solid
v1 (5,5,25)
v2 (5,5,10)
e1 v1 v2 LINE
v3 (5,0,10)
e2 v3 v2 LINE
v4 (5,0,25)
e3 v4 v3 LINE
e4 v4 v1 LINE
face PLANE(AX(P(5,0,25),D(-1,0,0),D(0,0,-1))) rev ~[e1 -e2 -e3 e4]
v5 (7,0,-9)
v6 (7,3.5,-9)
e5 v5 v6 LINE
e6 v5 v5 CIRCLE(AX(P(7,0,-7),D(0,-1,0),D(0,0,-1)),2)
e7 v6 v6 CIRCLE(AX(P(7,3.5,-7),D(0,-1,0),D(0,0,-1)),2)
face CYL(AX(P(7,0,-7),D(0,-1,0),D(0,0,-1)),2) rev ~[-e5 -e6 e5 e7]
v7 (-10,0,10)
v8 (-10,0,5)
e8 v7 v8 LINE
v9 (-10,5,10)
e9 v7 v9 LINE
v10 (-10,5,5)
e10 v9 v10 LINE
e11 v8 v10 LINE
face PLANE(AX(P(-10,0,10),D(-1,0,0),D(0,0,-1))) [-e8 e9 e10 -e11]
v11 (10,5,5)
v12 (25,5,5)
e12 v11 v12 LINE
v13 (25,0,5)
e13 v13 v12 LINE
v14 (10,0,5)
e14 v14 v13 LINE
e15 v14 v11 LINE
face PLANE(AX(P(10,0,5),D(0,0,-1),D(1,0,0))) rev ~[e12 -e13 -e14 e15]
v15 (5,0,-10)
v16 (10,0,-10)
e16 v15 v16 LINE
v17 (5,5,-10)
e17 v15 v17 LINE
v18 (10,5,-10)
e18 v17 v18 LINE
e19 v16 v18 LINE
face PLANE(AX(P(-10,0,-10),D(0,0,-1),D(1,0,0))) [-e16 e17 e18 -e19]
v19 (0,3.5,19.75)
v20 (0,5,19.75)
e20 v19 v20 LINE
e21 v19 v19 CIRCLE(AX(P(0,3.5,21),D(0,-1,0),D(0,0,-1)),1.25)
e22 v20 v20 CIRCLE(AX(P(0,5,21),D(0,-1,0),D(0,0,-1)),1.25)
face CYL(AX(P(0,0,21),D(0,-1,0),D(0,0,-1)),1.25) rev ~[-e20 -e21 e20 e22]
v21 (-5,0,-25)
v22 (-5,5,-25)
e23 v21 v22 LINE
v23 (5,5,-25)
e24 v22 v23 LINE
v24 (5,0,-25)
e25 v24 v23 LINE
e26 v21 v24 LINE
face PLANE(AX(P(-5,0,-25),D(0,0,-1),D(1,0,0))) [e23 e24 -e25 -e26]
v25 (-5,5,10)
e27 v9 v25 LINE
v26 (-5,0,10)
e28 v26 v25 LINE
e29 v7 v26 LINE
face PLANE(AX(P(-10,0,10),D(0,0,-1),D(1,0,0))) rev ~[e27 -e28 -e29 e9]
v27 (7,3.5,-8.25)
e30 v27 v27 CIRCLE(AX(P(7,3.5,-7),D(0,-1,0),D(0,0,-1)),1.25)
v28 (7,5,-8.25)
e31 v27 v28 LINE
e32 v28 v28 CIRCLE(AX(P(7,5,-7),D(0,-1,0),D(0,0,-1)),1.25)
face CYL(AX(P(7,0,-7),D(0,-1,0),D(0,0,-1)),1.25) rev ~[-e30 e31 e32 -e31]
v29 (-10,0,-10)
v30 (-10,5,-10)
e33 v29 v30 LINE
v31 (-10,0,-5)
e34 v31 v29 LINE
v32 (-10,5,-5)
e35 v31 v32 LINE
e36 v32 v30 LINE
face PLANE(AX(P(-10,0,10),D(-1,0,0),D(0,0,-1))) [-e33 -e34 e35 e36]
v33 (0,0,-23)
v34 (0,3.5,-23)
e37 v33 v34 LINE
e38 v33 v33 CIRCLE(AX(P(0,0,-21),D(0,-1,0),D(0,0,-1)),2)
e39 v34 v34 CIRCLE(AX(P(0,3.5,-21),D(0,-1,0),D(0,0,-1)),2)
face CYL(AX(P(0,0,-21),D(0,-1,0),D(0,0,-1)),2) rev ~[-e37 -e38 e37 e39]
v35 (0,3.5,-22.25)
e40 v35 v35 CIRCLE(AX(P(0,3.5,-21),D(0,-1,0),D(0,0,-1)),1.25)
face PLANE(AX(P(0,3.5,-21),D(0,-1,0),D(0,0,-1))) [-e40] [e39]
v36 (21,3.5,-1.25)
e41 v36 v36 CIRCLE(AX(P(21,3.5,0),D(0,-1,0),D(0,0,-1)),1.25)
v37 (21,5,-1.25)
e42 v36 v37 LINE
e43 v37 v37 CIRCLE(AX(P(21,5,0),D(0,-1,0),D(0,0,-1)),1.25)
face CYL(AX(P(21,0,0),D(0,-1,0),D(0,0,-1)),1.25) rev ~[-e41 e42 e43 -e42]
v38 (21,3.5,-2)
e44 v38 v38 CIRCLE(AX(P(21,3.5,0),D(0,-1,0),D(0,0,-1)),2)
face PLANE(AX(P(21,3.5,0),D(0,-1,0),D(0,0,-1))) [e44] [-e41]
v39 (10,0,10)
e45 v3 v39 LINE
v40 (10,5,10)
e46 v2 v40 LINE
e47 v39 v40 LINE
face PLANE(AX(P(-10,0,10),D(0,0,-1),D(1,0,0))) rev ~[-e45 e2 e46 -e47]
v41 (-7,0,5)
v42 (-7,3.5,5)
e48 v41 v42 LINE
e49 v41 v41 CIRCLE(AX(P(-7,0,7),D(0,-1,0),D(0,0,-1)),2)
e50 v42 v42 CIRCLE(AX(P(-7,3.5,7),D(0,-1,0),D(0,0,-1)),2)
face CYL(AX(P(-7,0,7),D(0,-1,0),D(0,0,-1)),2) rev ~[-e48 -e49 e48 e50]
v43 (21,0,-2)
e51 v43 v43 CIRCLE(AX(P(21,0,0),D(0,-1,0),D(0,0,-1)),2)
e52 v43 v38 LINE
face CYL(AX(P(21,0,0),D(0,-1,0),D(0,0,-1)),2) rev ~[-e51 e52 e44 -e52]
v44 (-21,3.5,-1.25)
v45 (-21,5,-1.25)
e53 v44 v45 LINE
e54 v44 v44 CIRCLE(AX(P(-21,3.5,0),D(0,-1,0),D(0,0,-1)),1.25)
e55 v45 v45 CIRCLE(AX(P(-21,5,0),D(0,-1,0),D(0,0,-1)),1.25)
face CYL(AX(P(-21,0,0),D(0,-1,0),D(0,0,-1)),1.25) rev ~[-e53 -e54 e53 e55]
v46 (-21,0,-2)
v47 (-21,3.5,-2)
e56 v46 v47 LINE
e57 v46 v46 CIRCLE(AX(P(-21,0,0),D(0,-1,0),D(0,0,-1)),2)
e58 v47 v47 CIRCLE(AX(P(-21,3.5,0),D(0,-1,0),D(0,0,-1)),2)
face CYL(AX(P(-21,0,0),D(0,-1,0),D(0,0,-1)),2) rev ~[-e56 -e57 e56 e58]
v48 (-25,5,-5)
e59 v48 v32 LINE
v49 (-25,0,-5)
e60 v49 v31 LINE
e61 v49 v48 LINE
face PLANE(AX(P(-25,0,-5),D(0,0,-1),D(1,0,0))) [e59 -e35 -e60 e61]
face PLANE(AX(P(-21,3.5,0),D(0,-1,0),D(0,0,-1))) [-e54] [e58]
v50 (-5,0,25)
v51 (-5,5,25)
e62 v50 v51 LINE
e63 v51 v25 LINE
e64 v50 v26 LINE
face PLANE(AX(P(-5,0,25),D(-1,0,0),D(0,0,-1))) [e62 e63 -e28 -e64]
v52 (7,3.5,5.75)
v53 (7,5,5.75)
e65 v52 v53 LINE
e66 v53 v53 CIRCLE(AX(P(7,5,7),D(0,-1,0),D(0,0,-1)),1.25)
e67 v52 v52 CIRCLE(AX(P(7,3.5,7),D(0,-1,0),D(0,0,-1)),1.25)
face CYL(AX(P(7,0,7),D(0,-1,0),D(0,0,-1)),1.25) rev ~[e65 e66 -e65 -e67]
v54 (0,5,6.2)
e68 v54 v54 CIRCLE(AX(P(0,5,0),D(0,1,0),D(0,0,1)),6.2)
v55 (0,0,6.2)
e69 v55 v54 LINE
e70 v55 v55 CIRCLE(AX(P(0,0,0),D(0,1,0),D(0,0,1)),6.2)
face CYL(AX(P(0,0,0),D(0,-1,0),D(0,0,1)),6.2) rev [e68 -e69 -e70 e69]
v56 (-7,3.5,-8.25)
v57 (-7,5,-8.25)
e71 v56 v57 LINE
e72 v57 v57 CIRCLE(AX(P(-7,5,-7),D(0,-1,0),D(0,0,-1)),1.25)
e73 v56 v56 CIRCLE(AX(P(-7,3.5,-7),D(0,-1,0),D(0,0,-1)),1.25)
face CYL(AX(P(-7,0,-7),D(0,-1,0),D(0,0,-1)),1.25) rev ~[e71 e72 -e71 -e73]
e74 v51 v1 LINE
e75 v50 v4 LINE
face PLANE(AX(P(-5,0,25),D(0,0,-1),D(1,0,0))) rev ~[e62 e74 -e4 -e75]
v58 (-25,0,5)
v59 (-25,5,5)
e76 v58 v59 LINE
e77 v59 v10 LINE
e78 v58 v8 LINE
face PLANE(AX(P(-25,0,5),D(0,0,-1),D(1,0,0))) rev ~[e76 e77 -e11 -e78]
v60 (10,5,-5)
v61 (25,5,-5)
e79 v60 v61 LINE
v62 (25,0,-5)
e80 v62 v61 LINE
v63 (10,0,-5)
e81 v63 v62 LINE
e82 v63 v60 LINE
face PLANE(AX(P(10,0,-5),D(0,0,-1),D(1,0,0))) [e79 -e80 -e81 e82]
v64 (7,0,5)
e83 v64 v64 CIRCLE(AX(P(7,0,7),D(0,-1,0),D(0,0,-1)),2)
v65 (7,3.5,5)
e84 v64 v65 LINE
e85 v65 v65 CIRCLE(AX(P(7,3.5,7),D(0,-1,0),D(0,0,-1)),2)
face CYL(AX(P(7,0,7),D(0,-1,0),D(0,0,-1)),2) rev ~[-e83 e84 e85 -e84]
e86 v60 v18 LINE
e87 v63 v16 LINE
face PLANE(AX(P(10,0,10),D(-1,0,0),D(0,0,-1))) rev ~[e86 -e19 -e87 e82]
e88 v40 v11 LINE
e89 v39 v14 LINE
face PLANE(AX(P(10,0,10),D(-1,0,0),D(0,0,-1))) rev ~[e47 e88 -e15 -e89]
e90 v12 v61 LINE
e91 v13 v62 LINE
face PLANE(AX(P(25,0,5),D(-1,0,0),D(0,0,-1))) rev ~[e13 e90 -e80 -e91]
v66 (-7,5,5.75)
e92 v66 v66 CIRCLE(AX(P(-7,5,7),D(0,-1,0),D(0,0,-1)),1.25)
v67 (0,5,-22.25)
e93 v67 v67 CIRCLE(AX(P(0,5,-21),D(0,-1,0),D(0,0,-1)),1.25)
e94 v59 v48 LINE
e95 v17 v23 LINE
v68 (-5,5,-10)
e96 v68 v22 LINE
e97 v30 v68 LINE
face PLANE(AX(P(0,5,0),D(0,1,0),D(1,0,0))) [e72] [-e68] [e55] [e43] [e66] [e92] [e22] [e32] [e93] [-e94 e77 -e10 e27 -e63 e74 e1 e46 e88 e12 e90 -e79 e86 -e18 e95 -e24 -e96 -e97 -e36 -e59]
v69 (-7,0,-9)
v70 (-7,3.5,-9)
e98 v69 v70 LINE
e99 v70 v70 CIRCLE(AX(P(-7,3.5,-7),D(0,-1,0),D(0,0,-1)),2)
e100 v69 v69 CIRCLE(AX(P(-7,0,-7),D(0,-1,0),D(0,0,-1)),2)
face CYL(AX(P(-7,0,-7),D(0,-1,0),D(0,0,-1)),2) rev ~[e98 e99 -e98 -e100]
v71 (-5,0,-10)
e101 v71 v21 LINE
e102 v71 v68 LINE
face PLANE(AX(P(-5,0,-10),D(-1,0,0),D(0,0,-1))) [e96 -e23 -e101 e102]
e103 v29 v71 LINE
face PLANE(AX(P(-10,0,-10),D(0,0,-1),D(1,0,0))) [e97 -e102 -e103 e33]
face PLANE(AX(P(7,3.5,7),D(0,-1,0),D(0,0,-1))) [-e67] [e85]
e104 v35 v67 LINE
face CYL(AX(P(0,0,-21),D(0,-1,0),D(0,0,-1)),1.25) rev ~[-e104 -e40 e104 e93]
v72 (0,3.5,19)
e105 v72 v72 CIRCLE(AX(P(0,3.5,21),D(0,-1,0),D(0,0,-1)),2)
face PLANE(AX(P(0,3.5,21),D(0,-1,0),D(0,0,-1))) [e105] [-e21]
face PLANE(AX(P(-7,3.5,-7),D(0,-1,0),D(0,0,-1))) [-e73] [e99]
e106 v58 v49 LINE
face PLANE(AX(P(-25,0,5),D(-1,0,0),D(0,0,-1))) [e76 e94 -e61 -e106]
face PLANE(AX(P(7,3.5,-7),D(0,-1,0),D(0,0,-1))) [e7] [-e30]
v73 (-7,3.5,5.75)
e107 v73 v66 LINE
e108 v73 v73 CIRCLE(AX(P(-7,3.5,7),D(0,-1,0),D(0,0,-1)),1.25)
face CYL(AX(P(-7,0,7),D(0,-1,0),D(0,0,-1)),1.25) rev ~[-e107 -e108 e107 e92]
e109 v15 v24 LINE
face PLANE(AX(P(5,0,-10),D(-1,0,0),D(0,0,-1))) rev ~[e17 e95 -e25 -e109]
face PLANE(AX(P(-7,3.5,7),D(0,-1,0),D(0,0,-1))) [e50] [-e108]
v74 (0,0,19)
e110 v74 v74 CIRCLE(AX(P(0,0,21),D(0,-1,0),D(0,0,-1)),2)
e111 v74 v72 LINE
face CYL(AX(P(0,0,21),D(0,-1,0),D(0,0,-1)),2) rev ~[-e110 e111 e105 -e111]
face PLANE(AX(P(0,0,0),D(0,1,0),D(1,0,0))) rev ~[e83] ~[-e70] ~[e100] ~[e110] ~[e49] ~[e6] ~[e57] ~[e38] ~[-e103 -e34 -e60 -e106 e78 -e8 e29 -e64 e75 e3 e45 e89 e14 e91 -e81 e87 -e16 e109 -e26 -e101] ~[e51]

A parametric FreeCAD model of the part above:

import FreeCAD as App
import Part
import Sketcher

V = App.Vector


def add_polygon(sketch, points):
    """Adds a closed chain of lines whose ends are joined by coincident constraints."""
    first, n = sketch.GeometryCount, len(points)
    for a, b in zip(points, points[1:] + points[:1]):
        sketch.addGeometry(Part.LineSegment(App.Vector(*a, 0), App.Vector(*b, 0)), False)
    for i in range(n):
        sketch.addConstraint(Sketcher.Constraint("Coincident", first + i, 2, first + (i + 1) % n, 1))

doc = App.newDocument("Part")
body = doc.addObject("PartDesign::Body", "Body")

# Sketch on XZ plane
sketch1 = body.newObject("Sketcher::SketchObject", "Sketch")
sketch1.AttachmentSupport = (doc.getObject("XZ_Plane"), [""])
sketch1.MapMode = "FlatFace"
add_polygon(sketch1, [(-10, 5), (-10, 10), (-5, 10), (-5, 25), (5, 25), (5, 10), (10, 10), (10, 5), (25, 5), (25, -5), (10, -5), (10, -10), (5, -10), (5, -25), (-5, -25), (-5, -10), (-10, -10), (-10, -5), (-25, -5), (-25, 5)])  # lines 0-19
sketch1.addGeometry(Part.Circle(V(0, 0, 0), V(0, 0, 1), 6), False)  # 20
sketch1.addConstraint(Sketcher.Constraint("Vertical", 0))
sketch1.addConstraint(Sketcher.Constraint("Horizontal", 1))
sketch1.addConstraint(Sketcher.Constraint("Vertical", 2))
sketch1.addConstraint(Sketcher.Constraint("Horizontal", 3))
sketch1.addConstraint(Sketcher.Constraint("Vertical", 4))
sketch1.addConstraint(Sketcher.Constraint("Horizontal", 5))
sketch1.addConstraint(Sketcher.Constraint("Vertical", 6))
sketch1.addConstraint(Sketcher.Constraint("Horizontal", 7))
sketch1.addConstraint(Sketcher.Constraint("Vertical", 8))
sketch1.addConstraint(Sketcher.Constraint("Horizontal", 9))
sketch1.addConstraint(Sketcher.Constraint("Vertical", 10))
sketch1.addConstraint(Sketcher.Constraint("Horizontal", 11))
sketch1.addConstraint(Sketcher.Constraint("Vertical", 12))
sketch1.addConstraint(Sketcher.Constraint("Horizontal", 13))
sketch1.addConstraint(Sketcher.Constraint("Vertical", 14))
sketch1.addConstraint(Sketcher.Constraint("Horizontal", 15))
sketch1.addConstraint(Sketcher.Constraint("Vertical", 16))
sketch1.addConstraint(Sketcher.Constraint("Horizontal", 17))
sketch1.addConstraint(Sketcher.Constraint("Vertical", 18))
sketch1.addConstraint(Sketcher.Constraint("Horizontal", 19))
sketch1.addConstraint(Sketcher.Constraint("Coincident", 20, 3, -1, 1))
sketch1.addConstraint(Sketcher.Constraint("Symmetric", 0, 2, 10, 2, -1, 1))
sketch1.addConstraint(Sketcher.Constraint("Symmetric", 2, 2, 12, 2, -1, 1))
sketch1.addConstraint(Sketcher.Constraint("Symmetric", 4, 2, 14, 2, -1, 1))
sketch1.addConstraint(Sketcher.Constraint("Symmetric", 6, 2, 16, 2, -1, 1))
sketch1.addConstraint(Sketcher.Constraint("Symmetric", 8, 2, 18, 2, -1, 1))
sketch1.addConstraint(Sketcher.Constraint("Symmetric", 1, 2, 4, 2, -2))
sketch1.addConstraint(Sketcher.Constraint("Symmetric", 9, 2, 16, 2, -2))
sketch1.addConstraint(Sketcher.Constraint("Equal", 15, 0))
sketch1.addConstraint(Sketcher.Constraint("Equal", 19, 2))
sketch1.addConstraint(Sketcher.Constraint("Equal", 13, 8))
sketch1.addConstraint(Sketcher.Constraint("Diameter", 20, 12.4))
sketch1.addConstraint(Sketcher.Constraint("DistanceX", 1, 1, 1, 2, 5.0))
sketch1.addConstraint(Sketcher.Constraint("DistanceX", 3, 1, 3, 2, 10.0))
sketch1.addConstraint(Sketcher.Constraint("DistanceX", 7, 1, 7, 2, 15.0))
pad1 = body.newObject("PartDesign::Pad", "Pad")
pad1.Profile = sketch1
pad1.Length = 5
pad1.Reversed = True

# Sketch on XZ plane
sketch2 = body.newObject("Sketcher::SketchObject", "Sketch001")
sketch2.AttachmentSupport = (doc.getObject("XZ_Plane"), [""])
sketch2.MapMode = "FlatFace"
sketch2.addGeometry(Part.Circle(V(7, 7, 0), V(0, 0, 1), 1.2), False)
sketch2.addGeometry(Part.Circle(V(7, -7, 0), V(0, 0, 1), 1.2), False)
sketch2.addGeometry(Part.Circle(V(-7, -7, 0), V(0, 0, 1), 1.2), False)
sketch2.addGeometry(Part.Circle(V(-7, 7, 0), V(0, 0, 1), 1.2), False)
sketch2.addGeometry(Part.Circle(V(0, 21, 0), V(0, 0, 1), 1.2), False)
sketch2.addGeometry(Part.Circle(V(21, 0, 0), V(0, 0, 1), 1.2), False)
sketch2.addGeometry(Part.Circle(V(0, -21, 0), V(0, 0, 1), 1.2), False)
sketch2.addGeometry(Part.Circle(V(-21, 0, 0), V(0, 0, 1), 1.2), False)
sketch2.addConstraint(Sketcher.Constraint("Equal", 0, 1))
sketch2.addConstraint(Sketcher.Constraint("Equal", 1, 2))
sketch2.addConstraint(Sketcher.Constraint("Equal", 2, 3))
sketch2.addConstraint(Sketcher.Constraint("Equal", 3, 4))
sketch2.addConstraint(Sketcher.Constraint("Equal", 4, 5))
sketch2.addConstraint(Sketcher.Constraint("Equal", 5, 6))
sketch2.addConstraint(Sketcher.Constraint("Equal", 6, 7))
sketch2.addConstraint(Sketcher.Constraint("Symmetric", 0, 3, 2, 3, -1, 1))
sketch2.addConstraint(Sketcher.Constraint("Symmetric", 1, 3, 3, 3, -1, 1))
sketch2.addConstraint(Sketcher.Constraint("Symmetric", 4, 3, 6, 3, -1, 1))
sketch2.addConstraint(Sketcher.Constraint("Symmetric", 5, 3, 7, 3, -1, 1))
sketch2.addConstraint(Sketcher.Constraint("Symmetric", 1, 3, 2, 3, -2))
sketch2.addConstraint(Sketcher.Constraint("PointOnObject", 4, 3, -2))
sketch2.addConstraint(Sketcher.Constraint("PointOnObject", 5, 3, -1))
sketch2.addConstraint(Sketcher.Constraint("Diameter", 0, 2.5))
sketch2.addConstraint(Sketcher.Constraint("DistanceX", -1, 1, 0, 3, 7.0))
sketch2.addConstraint(Sketcher.Constraint("DistanceY", -1, 1, 0, 3, 7.0))
sketch2.addConstraint(Sketcher.Constraint("DistanceY", -1, 1, 4, 3, 21.0))
sketch2.addConstraint(Sketcher.Constraint("DistanceX", -1, 1, 5, 3, 21.0))
pocket1 = body.newObject("PartDesign::Pocket", "Pocket")
pocket1.Profile = sketch2
pocket1.Type = "ThroughAll"

# Sketch on XZ plane
sketch3 = body.newObject("Sketcher::SketchObject", "Sketch002")
sketch3.AttachmentSupport = (doc.getObject("XZ_Plane"), [""])
sketch3.MapMode = "FlatFace"
sketch3.addGeometry(Part.Circle(V(7, 7, 0), V(0, 0, 1), 2), False)
sketch3.addGeometry(Part.Circle(V(7, 7, 0), V(0, 0, 1), 1.2), False)
sketch3.addGeometry(Part.Circle(V(7, -7, 0), V(0, 0, 1), 2), False)
sketch3.addGeometry(Part.Circle(V(7, -7, 0), V(0, 0, 1), 1.2), False)
sketch3.addGeometry(Part.Circle(V(-7, 7, 0), V(0, 0, 1), 2), False)
sketch3.addGeometry(Part.Circle(V(-7, 7, 0), V(0, 0, 1), 1.2), False)
sketch3.addGeometry(Part.Circle(V(-7, -7, 0), V(0, 0, 1), 2), False)
sketch3.addGeometry(Part.Circle(V(-7, -7, 0), V(0, 0, 1), 1.2), False)
sketch3.addGeometry(Part.Circle(V(0, 21, 0), V(0, 0, 1), 2), False)
sketch3.addGeometry(Part.Circle(V(0, 21, 0), V(0, 0, 1), 1.2), False)
sketch3.addGeometry(Part.Circle(V(21, 0, 0), V(0, 0, 1), 2), False)
sketch3.addGeometry(Part.Circle(V(21, 0, 0), V(0, 0, 1), 1.2), False)
sketch3.addGeometry(Part.Circle(V(0, -21, 0), V(0, 0, 1), 2), False)
sketch3.addGeometry(Part.Circle(V(0, -21, 0), V(0, 0, 1), 1.2), False)
sketch3.addGeometry(Part.Circle(V(-21, 0, 0), V(0, 0, 1), 2), False)
sketch3.addGeometry(Part.Circle(V(-21, 0, 0), V(0, 0, 1), 1.2), False)
sketch3.addConstraint(Sketcher.Constraint("Coincident", 1, 3, 0, 3))
sketch3.addConstraint(Sketcher.Constraint("Coincident", 3, 3, 2, 3))
sketch3.addConstraint(Sketcher.Constraint("Coincident", 5, 3, 4, 3))
sketch3.addConstraint(Sketcher.Constraint("Coincident", 7, 3, 6, 3))
sketch3.addConstraint(Sketcher.Constraint("Coincident", 9, 3, 8, 3))
sketch3.addConstraint(Sketcher.Constraint("Coincident", 11, 3, 10, 3))
sketch3.addConstraint(Sketcher.Constraint("Coincident", 13, 3, 12, 3))
sketch3.addConstraint(Sketcher.Constraint("Coincident", 15, 3, 14, 3))
sketch3.addConstraint(Sketcher.Constraint("Equal", 0, 2))
sketch3.addConstraint(Sketcher.Constraint("Equal", 1, 3))
sketch3.addConstraint(Sketcher.Constraint("Equal", 2, 4))
sketch3.addConstraint(Sketcher.Constraint("Equal", 3, 5))
sketch3.addConstraint(Sketcher.Constraint("Equal", 4, 6))
sketch3.addConstraint(Sketcher.Constraint("Equal", 5, 7))
sketch3.addConstraint(Sketcher.Constraint("Equal", 6, 8))
sketch3.addConstraint(Sketcher.Constraint("Equal", 7, 9))
sketch3.addConstraint(Sketcher.Constraint("Equal", 8, 10))
sketch3.addConstraint(Sketcher.Constraint("Equal", 9, 11))
sketch3.addConstraint(Sketcher.Constraint("Equal", 10, 12))
sketch3.addConstraint(Sketcher.Constraint("Equal", 11, 13))
sketch3.addConstraint(Sketcher.Constraint("Equal", 12, 14))
sketch3.addConstraint(Sketcher.Constraint("Equal", 13, 15))
sketch3.addConstraint(Sketcher.Constraint("Symmetric", 2, 3, 4, 3, -1, 1))
sketch3.addConstraint(Sketcher.Constraint("Symmetric", 0, 3, 6, 3, -1, 1))
sketch3.addConstraint(Sketcher.Constraint("Symmetric", 8, 3, 12, 3, -1, 1))
sketch3.addConstraint(Sketcher.Constraint("Symmetric", 10, 3, 14, 3, -1, 1))
sketch3.addConstraint(Sketcher.Constraint("Symmetric", 0, 3, 4, 3, -2))
sketch3.addConstraint(Sketcher.Constraint("PointOnObject", 8, 3, -2))
sketch3.addConstraint(Sketcher.Constraint("PointOnObject", 10, 3, -1))
sketch3.addConstraint(Sketcher.Constraint("Diameter", 0, 4.0))
sketch3.addConstraint(Sketcher.Constraint("Diameter", 1, 2.5))
sketch3.addConstraint(Sketcher.Constraint("DistanceX", -1, 1, 0, 3, 7.0))
sketch3.addConstraint(Sketcher.Constraint("DistanceY", -1, 1, 0, 3, 7.0))
sketch3.addConstraint(Sketcher.Constraint("DistanceY", -1, 1, 8, 3, 21.0))
sketch3.addConstraint(Sketcher.Constraint("DistanceX", -1, 1, 10, 3, 21.0))
pocket2 = body.newObject("PartDesign::Pocket", "Pocket001")
pocket2.Profile = sketch3
pocket2.Length = 3.5

doc.recompute()
